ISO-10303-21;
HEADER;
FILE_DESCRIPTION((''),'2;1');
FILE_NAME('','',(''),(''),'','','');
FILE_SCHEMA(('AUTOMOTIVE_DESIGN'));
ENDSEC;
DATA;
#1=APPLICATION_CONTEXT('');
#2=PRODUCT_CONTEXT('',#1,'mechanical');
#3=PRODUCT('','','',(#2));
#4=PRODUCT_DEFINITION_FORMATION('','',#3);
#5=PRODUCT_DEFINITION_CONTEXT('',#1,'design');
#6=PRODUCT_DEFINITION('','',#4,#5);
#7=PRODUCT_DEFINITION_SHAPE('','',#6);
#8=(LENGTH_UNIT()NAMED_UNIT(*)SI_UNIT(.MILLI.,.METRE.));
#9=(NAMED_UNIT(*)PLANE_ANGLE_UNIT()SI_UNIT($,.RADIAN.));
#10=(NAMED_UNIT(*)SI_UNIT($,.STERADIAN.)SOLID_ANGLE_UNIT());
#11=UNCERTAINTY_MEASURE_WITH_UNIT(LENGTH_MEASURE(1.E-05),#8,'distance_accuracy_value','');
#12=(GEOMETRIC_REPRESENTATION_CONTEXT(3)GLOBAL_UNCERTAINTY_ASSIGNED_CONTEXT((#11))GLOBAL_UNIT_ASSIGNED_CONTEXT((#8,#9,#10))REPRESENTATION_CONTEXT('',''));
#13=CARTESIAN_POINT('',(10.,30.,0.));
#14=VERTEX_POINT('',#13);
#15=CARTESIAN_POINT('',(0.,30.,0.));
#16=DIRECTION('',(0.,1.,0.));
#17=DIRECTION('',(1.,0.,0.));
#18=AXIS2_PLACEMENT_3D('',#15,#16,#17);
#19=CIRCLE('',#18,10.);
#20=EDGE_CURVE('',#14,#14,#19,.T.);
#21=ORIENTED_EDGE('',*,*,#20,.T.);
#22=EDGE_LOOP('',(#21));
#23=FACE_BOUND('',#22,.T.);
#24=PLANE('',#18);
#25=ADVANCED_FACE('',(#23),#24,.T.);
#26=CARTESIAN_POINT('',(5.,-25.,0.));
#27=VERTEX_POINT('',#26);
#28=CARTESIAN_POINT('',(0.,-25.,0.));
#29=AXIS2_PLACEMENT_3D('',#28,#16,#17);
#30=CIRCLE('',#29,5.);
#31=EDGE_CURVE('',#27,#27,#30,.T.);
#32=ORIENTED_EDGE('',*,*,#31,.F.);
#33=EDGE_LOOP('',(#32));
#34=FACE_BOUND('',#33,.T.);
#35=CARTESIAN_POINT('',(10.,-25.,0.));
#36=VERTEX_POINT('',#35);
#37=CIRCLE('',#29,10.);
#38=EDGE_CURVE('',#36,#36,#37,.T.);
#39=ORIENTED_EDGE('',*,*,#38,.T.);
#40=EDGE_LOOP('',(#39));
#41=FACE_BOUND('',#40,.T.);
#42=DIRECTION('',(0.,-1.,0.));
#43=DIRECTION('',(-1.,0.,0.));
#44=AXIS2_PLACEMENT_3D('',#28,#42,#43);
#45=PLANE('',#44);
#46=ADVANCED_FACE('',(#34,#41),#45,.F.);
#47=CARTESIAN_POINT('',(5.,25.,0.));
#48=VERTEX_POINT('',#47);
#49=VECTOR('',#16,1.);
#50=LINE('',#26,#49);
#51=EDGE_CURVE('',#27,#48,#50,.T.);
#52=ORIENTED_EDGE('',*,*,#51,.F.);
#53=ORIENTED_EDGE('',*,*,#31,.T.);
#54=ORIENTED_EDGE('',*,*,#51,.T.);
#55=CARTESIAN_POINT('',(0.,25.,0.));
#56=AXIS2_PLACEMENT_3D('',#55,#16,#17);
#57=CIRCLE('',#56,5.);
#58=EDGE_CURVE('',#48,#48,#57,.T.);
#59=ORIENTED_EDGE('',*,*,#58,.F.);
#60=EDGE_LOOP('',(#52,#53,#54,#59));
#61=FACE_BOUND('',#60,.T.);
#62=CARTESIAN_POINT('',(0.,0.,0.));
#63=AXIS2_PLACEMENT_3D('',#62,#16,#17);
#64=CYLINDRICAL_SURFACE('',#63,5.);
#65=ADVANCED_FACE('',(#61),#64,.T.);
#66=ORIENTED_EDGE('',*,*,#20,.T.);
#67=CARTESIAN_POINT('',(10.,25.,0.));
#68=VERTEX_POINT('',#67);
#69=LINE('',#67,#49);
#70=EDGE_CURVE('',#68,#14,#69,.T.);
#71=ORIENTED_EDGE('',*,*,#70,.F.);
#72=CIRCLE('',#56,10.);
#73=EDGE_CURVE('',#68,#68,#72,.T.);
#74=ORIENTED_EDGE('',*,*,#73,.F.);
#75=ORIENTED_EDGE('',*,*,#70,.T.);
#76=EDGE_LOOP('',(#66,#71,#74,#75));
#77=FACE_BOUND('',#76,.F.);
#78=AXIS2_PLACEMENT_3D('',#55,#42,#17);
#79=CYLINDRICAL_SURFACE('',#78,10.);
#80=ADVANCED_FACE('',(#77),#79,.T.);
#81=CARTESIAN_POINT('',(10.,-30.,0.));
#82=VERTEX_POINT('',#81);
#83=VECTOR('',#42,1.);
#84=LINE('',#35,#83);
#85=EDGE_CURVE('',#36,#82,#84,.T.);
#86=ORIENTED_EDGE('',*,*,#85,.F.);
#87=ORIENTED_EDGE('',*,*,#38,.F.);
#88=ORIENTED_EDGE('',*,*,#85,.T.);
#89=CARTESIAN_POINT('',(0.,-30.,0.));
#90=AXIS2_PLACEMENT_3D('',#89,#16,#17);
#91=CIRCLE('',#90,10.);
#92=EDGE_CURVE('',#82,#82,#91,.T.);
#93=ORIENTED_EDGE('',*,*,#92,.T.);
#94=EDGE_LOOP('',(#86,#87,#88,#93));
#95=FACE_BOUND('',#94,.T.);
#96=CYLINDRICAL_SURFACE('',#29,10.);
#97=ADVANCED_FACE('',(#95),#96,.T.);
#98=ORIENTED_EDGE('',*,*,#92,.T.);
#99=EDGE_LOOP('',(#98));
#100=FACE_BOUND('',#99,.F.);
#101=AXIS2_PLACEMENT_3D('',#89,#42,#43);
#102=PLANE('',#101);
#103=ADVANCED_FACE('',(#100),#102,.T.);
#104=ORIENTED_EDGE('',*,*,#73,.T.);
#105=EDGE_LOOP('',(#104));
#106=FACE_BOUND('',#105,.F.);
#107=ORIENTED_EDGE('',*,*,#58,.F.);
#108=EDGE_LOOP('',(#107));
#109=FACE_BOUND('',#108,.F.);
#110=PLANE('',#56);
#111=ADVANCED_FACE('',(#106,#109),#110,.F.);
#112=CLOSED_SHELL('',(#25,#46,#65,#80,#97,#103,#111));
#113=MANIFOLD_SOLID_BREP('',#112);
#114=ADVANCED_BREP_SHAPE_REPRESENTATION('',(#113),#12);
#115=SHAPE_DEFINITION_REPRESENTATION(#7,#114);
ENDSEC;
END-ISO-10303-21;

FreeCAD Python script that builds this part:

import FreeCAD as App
import Part
import Sketcher

doc = App.newDocument("Part")
body = doc.addObject("PartDesign::Body", "Body")

sketch1 = body.newObject("Sketcher::SketchObject", "Sketch")
sketch1.AttachmentSupport = (doc.getObject("XZ_Plane"), [""])
sketch1.MapMode = "FlatFace"
sketch1.addGeometry(Part.Circle(App.Vector(0, 0, 0), App.Vector(0, 0, 1), 5), False)
sketch1.addConstraint([
    Sketcher.Constraint("Coincident", 0, 3, -1, 1),
    Sketcher.Constraint("Diameter", 0, 10.0),
])
pad1 = body.newObject("PartDesign::Pad", "Pad")
pad1.Profile = sketch1
pad1.Length = 50
pad1.Midplane = True

sketch2 = body.newObject("Sketcher::SketchObject", "Sketch001")
sketch2.AttachmentSupport = (doc.getObject("XZ_Plane"), [""])
sketch2.MapMode = "FlatFace"
sketch2.AttachmentOffset = App.Placement(App.Vector(0, 0, -25), App.Rotation())
sketch2.addGeometry(Part.Circle(App.Vector(0, 0, 0), App.Vector(0, 0, 1), 10), False)
sketch2.addConstraint([
    Sketcher.Constraint("Coincident", 0, 3, -1, 1),
    Sketcher.Constraint("Diameter", 0, 20.0),
])
pad2 = body.newObject("PartDesign::Pad", "Pad001")
pad2.Profile = sketch2
pad2.Length = 5
pad2.Reversed = True
doc.recompute()

mirrored = body.newObject("PartDesign::Mirrored", "Mirrored")
mirrored.Originals = [pad2]
mirrored.MirrorPlane = (doc.getObject("XZ_Plane"), [""])
body.Tip = mirrored

doc.recompute()
